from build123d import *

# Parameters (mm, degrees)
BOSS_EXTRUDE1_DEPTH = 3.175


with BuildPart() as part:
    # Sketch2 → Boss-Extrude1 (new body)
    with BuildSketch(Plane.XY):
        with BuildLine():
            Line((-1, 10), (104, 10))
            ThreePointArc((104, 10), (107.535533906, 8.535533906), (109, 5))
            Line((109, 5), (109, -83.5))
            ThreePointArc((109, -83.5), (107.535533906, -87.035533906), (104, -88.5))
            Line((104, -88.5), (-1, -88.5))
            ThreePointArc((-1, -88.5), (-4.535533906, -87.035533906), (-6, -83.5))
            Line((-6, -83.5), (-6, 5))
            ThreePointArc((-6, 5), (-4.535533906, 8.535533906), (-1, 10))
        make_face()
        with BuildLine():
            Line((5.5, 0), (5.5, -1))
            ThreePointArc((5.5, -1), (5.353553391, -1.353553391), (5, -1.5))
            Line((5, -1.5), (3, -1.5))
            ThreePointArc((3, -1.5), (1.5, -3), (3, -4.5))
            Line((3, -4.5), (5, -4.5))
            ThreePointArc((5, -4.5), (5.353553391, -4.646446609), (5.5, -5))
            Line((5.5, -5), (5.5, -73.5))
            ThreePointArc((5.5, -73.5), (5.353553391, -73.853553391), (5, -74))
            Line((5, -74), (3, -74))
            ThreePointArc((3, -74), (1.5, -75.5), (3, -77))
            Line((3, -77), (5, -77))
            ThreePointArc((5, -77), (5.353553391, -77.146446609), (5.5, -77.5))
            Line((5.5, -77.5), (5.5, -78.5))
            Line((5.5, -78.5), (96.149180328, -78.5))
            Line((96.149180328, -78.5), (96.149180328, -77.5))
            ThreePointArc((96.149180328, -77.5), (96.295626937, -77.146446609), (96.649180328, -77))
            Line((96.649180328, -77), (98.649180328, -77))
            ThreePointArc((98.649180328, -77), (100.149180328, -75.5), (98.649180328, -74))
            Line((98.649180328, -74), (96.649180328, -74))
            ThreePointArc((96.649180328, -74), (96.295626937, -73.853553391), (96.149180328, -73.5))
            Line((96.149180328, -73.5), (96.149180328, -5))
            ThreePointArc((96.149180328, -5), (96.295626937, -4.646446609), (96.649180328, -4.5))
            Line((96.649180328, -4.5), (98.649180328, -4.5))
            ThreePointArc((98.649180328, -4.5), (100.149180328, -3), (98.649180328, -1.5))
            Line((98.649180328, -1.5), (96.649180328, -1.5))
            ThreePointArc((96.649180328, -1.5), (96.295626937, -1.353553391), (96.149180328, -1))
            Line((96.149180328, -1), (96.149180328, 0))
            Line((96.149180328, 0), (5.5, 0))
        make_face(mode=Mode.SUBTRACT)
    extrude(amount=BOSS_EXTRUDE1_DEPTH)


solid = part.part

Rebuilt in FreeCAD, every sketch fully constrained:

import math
import FreeCAD as App
import Part
import Sketcher
from FreeCAD import Vector

doc = App.newDocument("Part")
body = doc.addObject("PartDesign::Body", "Body")

# Sketch on XY plane
sketch1 = body.newObject("Sketcher::SketchObject", "Sketch")
sketch1.AttachmentSupport = (doc.getObject("XY_Plane"), [""])
sketch1.MapMode = "FlatFace"
sketch1.addGeometry([
    Part.LineSegment(Vector(104, 10, 0), Vector(-1, 10, 0)),  # 0
    Part.ArcOfCircle(Part.Circle(Vector(-1, 5, 0), Vector(0, 0, 1), 5), math.radians(90), math.radians(180)),  # 1
    Part.LineSegment(Vector(-6, 5, 0), Vector(-6, -83.5, 0)),  # 2
    Part.ArcOfCircle(Part.Circle(Vector(-1, -83.5, 0), Vector(0, 0, 1), 5), math.radians(180), math.radians(270)),  # 3
    Part.LineSegment(Vector(-1, -88.5, 0), Vector(104, -88.5, 0)),  # 4
    Part.ArcOfCircle(Part.Circle(Vector(104, -83.5, 0), Vector(0, 0, 1), 5), math.radians(-90), math.radians(0)),  # 5
    Part.LineSegment(Vector(109, -83.5, 0), Vector(109, 5, 0)),  # 6
    Part.ArcOfCircle(Part.Circle(Vector(104, 5, 0), Vector(0, 0, 1), 5), math.radians(0), math.radians(90)),  # 7
    Part.LineSegment(Vector(5.5, 0, 0), Vector(96.15, 0, 0)),  # 8
    Part.LineSegment(Vector(96.15, 0, 0), Vector(96.15, -1, 0)),  # 9
    Part.ArcOfCircle(Part.Circle(Vector(96.65, -1, 0), Vector(0, 0, 1), 0.5), math.radians(180), math.radians(270)),  # 10
    Part.LineSegment(Vector(96.65, -1.5, 0), Vector(98.65, -1.5, 0)),  # 11
    Part.ArcOfCircle(Part.Circle(Vector(98.65, -3, 0), Vector(0, 0, 1), 1.5), math.radians(-90), math.radians(90)),  # 12
    Part.LineSegment(Vector(98.65, -4.5, 0), Vector(96.65, -4.5, 0)),  # 13
    Part.ArcOfCircle(Part.Circle(Vector(96.65, -5, 0), Vector(0, 0, 1), 0.5), math.radians(90), math.radians(180)),  # 14
    Part.LineSegment(Vector(96.15, -5, 0), Vector(96.15, -73.5, 0)),  # 15
    Part.ArcOfCircle(Part.Circle(Vector(96.65, -73.5, 0), Vector(0, 0, 1), 0.5), math.radians(180), math.radians(270)),  # 16
    Part.LineSegment(Vector(96.65, -74, 0), Vector(98.65, -74, 0)),  # 17
    Part.ArcOfCircle(Part.Circle(Vector(98.65, -75.5, 0), Vector(0, 0, 1), 1.5), math.radians(-90), math.radians(90)),  # 18
    Part.LineSegment(Vector(98.65, -77, 0), Vector(96.65, -77, 0)),  # 19
    Part.ArcOfCircle(Part.Circle(Vector(96.65, -77.5, 0), Vector(0, 0, 1), 0.5), math.radians(90), math.radians(180)),  # 20
    Part.LineSegment(Vector(96.15, -77.5, 0), Vector(96.15, -78.5, 0)),  # 21
    Part.LineSegment(Vector(96.15, -78.5, 0), Vector(5.5, -78.5, 0)),  # 22
    Part.LineSegment(Vector(5.5, -78.5, 0), Vector(5.5, -77.5, 0)),  # 23
    Part.ArcOfCircle(Part.Circle(Vector(5, -77.5, 0), Vector(0, 0, 1), 0.5), math.radians(0), math.radians(90)),  # 24
    Part.LineSegment(Vector(5, -77, 0), Vector(3, -77, 0)),  # 25
    Part.ArcOfCircle(Part.Circle(Vector(3, -75.5, 0), Vector(0, 0, 1), 1.5), math.radians(90), math.radians(270)),  # 26
    Part.LineSegment(Vector(3, -74, 0), Vector(5, -74, 0)),  # 27
    Part.ArcOfCircle(Part.Circle(Vector(5, -73.5, 0), Vector(0, 0, 1), 0.5), math.radians(-90), math.radians(0)),  # 28
    Part.LineSegment(Vector(5.5, -73.5, 0), Vector(5.5, -5, 0)),  # 29
    Part.ArcOfCircle(Part.Circle(Vector(5, -5, 0), Vector(0, 0, 1), 0.5), math.radians(0), math.radians(90)),  # 30
    Part.LineSegment(Vector(5, -4.5, 0), Vector(3, -4.5, 0)),  # 31
    Part.ArcOfCircle(Part.Circle(Vector(3, -3, 0), Vector(0, 0, 1), 1.5), math.radians(90), math.radians(270)),  # 32
    Part.LineSegment(Vector(3, -1.5, 0), Vector(5, -1.5, 0)),  # 33
    Part.ArcOfCircle(Part.Circle(Vector(5, -1, 0), Vector(0, 0, 1), 0.5), math.radians(-90), math.radians(0)),  # 34
    Part.LineSegment(Vector(5.5, -1, 0), Vector(5.5, 0, 0)),  # 35
], False)
sketch1.addConstraint([
    Sketcher.Constraint("Tangent", 0, 2, 1, 1),
    Sketcher.Constraint("Tangent", 1, 2, 2, 1),
    Sketcher.Constraint("Tangent", 2, 2, 3, 1),
    Sketcher.Constraint("Tangent", 3, 2, 4, 1),
    Sketcher.Constraint("Tangent", 4, 2, 5, 1),
    Sketcher.Constraint("Tangent", 5, 2, 6, 1),
    Sketcher.Constraint("Tangent", 6, 2, 7, 1),
    Sketcher.Constraint("Tangent", 7, 2, 0, 1),
    Sketcher.Constraint("Coincident", 8, 2, 9, 1),
    Sketcher.Constraint("Tangent", 9, 2, 10, 1),
    Sketcher.Constraint("Tangent", 10, 2, 11, 1),
    Sketcher.Constraint("Tangent", 11, 2, 12, 2),
    Sketcher.Constraint("Tangent", 12, 1, 13, 1),
    Sketcher.Constraint("Tangent", 13, 2, 14, 1),
    Sketcher.Constraint("Tangent", 14, 2, 15, 1),
    Sketcher.Constraint("Tangent", 15, 2, 16, 1),
    Sketcher.Constraint("Tangent", 16, 2, 17, 1),
    Sketcher.Constraint("Tangent", 17, 2, 18, 2),
    Sketcher.Constraint("Tangent", 18, 1, 19, 1),
    Sketcher.Constraint("Tangent", 19, 2, 20, 1),
    Sketcher.Constraint("Tangent", 20, 2, 21, 1),
    Sketcher.Constraint("Coincident", 21, 2, 22, 1),
    Sketcher.Constraint("Coincident", 22, 2, 23, 1),
    Sketcher.Constraint("Tangent", 23, 2, 24, 1),
    Sketcher.Constraint("Tangent", 24, 2, 25, 1),
    Sketcher.Constraint("Tangent", 25, 2, 26, 2),
    Sketcher.Constraint("Tangent", 26, 1, 27, 1),
    Sketcher.Constraint("Tangent", 27, 2, 28, 1),
    Sketcher.Constraint("Tangent", 28, 2, 29, 1),
    Sketcher.Constraint("Tangent", 29, 2, 30, 1),
    Sketcher.Constraint("Tangent", 30, 2, 31, 1),
    Sketcher.Constraint("Tangent", 31, 2, 32, 2),
    Sketcher.Constraint("Tangent", 32, 1, 33, 1),
    Sketcher.Constraint("Tangent", 33, 2, 34, 1),
    Sketcher.Constraint("Tangent", 34, 2, 35, 1),
    Sketcher.Constraint("Coincident", 35, 2, 8, 1),
    Sketcher.Constraint("Horizontal", 0),
    Sketcher.Constraint("Vertical", 2),
    Sketcher.Constraint("Horizontal", 4),
    Sketcher.Constraint("Vertical", 6),
    Sketcher.Constraint("Horizontal", 8),
    Sketcher.Constraint("Vertical", 9),
    Sketcher.Constraint("Horizontal", 11),
    Sketcher.Constraint("Horizontal", 13),
    Sketcher.Constraint("Vertical", 15),
    Sketcher.Constraint("Horizontal", 17),
    Sketcher.Constraint("Horizontal", 19),
    Sketcher.Constraint("Vertical", 21),
    Sketcher.Constraint("Horizontal", 22),
    Sketcher.Constraint("Vertical", 23),
    Sketcher.Constraint("Horizontal", 25),
    Sketcher.Constraint("Horizontal", 27),
    Sketcher.Constraint("Vertical", 29),
    Sketcher.Constraint("Horizontal", 31),
    Sketcher.Constraint("Horizontal", 33),
    Sketcher.Constraint("Vertical", 35),
    Sketcher.Constraint("Equal", 1, 3),
    Sketcher.Constraint("Equal", 3, 5),
    Sketcher.Constraint("Equal", 5, 7),
    Sketcher.Constraint("Equal", 10, 14),
    Sketcher.Constraint("Equal", 14, 16),
    Sketcher.Constraint("Equal", 12, 18),
    Sketcher.Constraint("Equal", 16, 20),
    Sketcher.Constraint("Equal", 20, 24),
    Sketcher.Constraint("Equal", 18, 26),
    Sketcher.Constraint("Equal", 24, 28),
    Sketcher.Constraint("Equal", 28, 30),
    Sketcher.Constraint("Equal", 26, 32),
    Sketcher.Constraint("Equal", 30, 34),
    Sketcher.Constraint("PointOnObject", 8, 2, -1),
    Sketcher.Constraint("Horizontal", 20, 3, 24, 3),
    Sketcher.Constraint("Horizontal", 14, 3, 30, 3),
    Sketcher.Constraint("Vertical", 10, 3, 14, 3),
    Sketcher.Constraint("Vertical", 12, 3, 18, 3),
    Sketcher.Constraint("Vertical", 16, 3, 20, 3),
    Sketcher.Constraint("Vertical", 24, 3, 28, 3),
    Sketcher.Constraint("Vertical", 26, 3, 32, 3),
    Sketcher.Constraint("Vertical", 30, 3, 34, 3),
    Sketcher.Constraint("Equal", 19, 25),
    Sketcher.Constraint("Equal", 9, 21),
    Sketcher.Constraint("Radius", 1, 5.0),
    Sketcher.Constraint("Radius", 10, 0.5),
    Sketcher.Constraint("Radius", 12, 1.5),
    Sketcher.Constraint("DistanceX", 0, 2, 0, 1, 105.0),
    Sketcher.Constraint("DistanceX", 11, 1, 11, 2, 2.0),
    Sketcher.Constraint("DistanceY", 9, 2, 9, 1, 1.0),
    Sketcher.Constraint("DistanceY", 2, 2, 2, 1, 88.5),
    Sketcher.Constraint("DistanceY", 15, 2, 15, 1, 68.5),
    Sketcher.Constraint("DistanceX", 1, 3, -1, 1, 1.0),
    Sketcher.Constraint("DistanceY", -1, 1, 1, 3, 5.0),
    Sketcher.Constraint("DistanceX", -1, 1, 24, 3, 5.0),
    Sketcher.Constraint("DistanceX", 8, 1, 8, 2, 90.64918),
])
pad1 = body.newObject("PartDesign::Pad", "Pad")
pad1.Profile = sketch1
pad1.Length = 3.175

doc.recompute()
